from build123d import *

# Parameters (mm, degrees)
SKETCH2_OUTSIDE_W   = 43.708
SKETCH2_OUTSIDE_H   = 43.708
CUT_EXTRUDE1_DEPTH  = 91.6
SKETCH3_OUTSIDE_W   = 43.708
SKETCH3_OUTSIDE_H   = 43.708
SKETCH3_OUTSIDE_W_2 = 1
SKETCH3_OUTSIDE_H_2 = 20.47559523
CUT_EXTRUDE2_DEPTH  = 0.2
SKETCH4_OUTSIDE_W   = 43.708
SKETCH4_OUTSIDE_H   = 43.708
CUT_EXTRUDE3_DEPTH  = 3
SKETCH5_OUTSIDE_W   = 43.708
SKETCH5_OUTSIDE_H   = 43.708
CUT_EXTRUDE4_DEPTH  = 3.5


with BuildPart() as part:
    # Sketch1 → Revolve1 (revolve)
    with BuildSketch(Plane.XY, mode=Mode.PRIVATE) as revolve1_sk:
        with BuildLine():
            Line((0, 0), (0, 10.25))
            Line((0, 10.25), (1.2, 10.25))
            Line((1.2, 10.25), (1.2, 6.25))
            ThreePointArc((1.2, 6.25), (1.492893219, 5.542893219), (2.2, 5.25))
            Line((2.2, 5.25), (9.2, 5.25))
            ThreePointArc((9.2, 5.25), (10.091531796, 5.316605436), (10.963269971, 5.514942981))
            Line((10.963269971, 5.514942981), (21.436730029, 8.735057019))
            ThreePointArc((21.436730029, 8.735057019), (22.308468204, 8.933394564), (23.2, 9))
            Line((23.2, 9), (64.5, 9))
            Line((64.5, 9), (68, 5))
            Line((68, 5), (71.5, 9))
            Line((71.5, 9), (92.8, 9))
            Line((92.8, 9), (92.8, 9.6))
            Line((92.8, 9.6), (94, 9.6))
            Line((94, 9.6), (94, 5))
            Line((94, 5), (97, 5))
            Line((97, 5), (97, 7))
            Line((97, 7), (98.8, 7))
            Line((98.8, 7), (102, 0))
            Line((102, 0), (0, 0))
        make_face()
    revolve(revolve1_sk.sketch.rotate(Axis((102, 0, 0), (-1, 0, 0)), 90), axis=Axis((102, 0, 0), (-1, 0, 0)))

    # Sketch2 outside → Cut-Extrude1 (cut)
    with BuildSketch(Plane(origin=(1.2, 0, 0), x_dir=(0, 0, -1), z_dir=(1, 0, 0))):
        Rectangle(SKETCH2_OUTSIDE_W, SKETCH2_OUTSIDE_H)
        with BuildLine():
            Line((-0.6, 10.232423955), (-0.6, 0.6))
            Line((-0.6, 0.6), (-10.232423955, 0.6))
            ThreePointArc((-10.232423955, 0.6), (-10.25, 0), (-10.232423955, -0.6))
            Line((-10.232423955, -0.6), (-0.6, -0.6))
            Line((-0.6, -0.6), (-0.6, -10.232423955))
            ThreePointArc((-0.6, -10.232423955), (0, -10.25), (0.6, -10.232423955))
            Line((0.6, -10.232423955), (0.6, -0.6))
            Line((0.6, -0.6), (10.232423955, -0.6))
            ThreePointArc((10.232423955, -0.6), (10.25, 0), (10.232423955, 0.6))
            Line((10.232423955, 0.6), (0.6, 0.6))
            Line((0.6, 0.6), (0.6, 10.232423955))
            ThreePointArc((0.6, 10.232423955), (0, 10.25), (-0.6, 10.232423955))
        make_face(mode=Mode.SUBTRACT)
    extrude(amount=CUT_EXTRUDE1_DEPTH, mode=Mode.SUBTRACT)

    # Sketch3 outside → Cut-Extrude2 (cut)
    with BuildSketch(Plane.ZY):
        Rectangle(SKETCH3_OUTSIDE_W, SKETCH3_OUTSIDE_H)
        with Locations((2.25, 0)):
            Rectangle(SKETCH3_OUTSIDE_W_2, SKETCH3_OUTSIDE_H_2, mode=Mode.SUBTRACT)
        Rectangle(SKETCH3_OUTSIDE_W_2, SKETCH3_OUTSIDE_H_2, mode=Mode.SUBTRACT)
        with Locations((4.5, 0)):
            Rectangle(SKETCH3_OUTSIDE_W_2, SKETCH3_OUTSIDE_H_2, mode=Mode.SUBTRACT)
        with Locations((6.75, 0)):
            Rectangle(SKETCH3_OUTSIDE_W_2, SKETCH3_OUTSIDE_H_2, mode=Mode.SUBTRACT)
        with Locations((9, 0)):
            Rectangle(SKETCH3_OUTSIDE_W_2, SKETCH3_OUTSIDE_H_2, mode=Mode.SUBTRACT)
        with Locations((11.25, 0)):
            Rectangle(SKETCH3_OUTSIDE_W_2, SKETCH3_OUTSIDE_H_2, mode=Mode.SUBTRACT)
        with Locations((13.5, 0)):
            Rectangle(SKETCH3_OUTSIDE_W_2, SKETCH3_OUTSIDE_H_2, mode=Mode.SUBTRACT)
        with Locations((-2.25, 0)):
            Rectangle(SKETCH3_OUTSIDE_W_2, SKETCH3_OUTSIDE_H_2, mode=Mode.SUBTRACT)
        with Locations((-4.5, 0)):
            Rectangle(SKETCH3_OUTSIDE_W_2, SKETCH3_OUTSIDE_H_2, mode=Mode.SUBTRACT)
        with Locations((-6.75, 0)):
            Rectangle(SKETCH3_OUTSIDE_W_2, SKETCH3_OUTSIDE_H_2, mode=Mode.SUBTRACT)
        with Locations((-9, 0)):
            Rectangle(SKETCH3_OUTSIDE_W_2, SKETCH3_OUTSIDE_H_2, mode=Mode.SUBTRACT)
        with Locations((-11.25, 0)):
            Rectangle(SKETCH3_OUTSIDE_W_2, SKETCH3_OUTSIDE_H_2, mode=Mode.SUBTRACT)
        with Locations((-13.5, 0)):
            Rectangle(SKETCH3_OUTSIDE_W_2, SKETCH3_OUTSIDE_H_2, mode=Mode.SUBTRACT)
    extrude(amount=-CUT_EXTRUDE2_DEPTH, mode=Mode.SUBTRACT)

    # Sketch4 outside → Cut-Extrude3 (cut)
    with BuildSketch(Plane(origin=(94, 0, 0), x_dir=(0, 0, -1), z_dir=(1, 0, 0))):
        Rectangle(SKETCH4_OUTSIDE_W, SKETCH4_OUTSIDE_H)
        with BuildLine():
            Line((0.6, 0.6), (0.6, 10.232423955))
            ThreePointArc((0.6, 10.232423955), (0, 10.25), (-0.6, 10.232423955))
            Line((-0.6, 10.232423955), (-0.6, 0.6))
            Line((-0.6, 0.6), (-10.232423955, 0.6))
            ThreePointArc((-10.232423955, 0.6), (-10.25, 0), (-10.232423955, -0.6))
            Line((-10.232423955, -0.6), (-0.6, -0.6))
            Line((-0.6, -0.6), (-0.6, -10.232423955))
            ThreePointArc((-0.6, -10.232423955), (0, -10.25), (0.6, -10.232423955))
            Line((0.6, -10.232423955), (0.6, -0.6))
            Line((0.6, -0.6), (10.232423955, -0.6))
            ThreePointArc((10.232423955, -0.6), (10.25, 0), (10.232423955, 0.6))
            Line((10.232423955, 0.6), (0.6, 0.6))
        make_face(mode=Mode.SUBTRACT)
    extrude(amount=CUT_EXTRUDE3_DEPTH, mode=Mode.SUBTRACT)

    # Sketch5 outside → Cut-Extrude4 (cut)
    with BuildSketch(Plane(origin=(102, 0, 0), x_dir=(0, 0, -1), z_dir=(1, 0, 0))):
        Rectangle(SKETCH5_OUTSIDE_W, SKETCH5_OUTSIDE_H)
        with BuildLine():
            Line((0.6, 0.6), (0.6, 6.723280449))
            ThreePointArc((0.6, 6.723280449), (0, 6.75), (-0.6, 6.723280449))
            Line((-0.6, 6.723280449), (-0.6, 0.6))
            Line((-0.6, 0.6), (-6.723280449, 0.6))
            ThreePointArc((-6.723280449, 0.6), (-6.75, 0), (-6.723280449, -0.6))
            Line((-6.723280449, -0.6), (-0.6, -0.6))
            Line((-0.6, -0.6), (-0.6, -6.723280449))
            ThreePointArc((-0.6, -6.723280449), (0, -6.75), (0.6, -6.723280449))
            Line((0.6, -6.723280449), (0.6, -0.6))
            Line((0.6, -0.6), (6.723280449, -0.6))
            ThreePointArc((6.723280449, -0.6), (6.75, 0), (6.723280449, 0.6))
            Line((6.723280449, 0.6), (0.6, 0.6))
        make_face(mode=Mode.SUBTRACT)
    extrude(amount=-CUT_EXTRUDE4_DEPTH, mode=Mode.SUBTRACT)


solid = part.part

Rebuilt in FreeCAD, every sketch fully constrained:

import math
import FreeCAD as App
import Part
import Sketcher
Q = App.Units.Quantity

doc = App.newDocument("Part")
body = doc.addObject("PartDesign::Body", "Body")

# Sketch on XY plane
sketch1 = body.newObject("Sketcher::SketchObject", "Sketch")
sketch1.AttachmentSupport = (doc.getObject("XY_Plane"), [""])
sketch1.MapMode = "FlatFace"
sketch1.addGeometry([
    Part.LineSegment(App.Vector(0, 10.25, 0), App.Vector(0, 0, 0)),  # 0
    Part.LineSegment(App.Vector(0, 0, 0), App.Vector(102, 0, 0)),  # 1
    Part.LineSegment(App.Vector(102, 0, 0), App.Vector(98.8, 7, 0)),  # 2
    Part.LineSegment(App.Vector(98.8, 7, 0), App.Vector(97, 7, 0)),  # 3
    Part.LineSegment(App.Vector(97, 7, 0), App.Vector(97, 5, 0)),  # 4
    Part.LineSegment(App.Vector(97, 5, 0), App.Vector(94, 5, 0)),  # 5
    Part.LineSegment(App.Vector(94, 5, 0), App.Vector(94, 9.6, 0)),  # 6
    Part.LineSegment(App.Vector(94, 9.6, 0), App.Vector(92.8, 9.6, 0)),  # 7
    Part.LineSegment(App.Vector(92.8, 9.6, 0), App.Vector(92.8, 9, 0)),  # 8
    Part.LineSegment(App.Vector(92.8, 9, 0), App.Vector(71.5, 9, 0)),  # 9
    Part.LineSegment(App.Vector(71.5, 9, 0), App.Vector(68, 5, 0)),  # 10
    Part.LineSegment(App.Vector(68, 5, 0), App.Vector(64.5, 9, 0)),  # 11
    Part.LineSegment(App.Vector(64.5, 9, 0), App.Vector(23.2, 9, 0)),  # 12
    Part.ArcOfCircle(Part.Circle(App.Vector(23.2, 3, 0), App.Vector(0, 0, 1), 6), math.radians(90), math.radians(107.090289)),  # 13
    Part.LineSegment(App.Vector(21.43673, 8.735057, 0), App.Vector(10.96327, 5.514943, 0)),  # 14
    Part.ArcOfCircle(Part.Circle(App.Vector(9.2, 11.25, 0), App.Vector(0, 0, 1), 6), math.radians(-90), math.radians(-72.909711)),  # 15
    Part.LineSegment(App.Vector(9.2, 5.25, 0), App.Vector(2.2, 5.25, 0)),  # 16
    Part.ArcOfCircle(Part.Circle(App.Vector(2.2, 6.25, 0), App.Vector(0, 0, 1), 1), math.radians(-180), math.radians(-90)),  # 17
    Part.LineSegment(App.Vector(1.2, 6.25, 0), App.Vector(1.2, 10.25, 0)),  # 18
    Part.LineSegment(App.Vector(1.2, 10.25, 0), App.Vector(0, 10.25, 0)),  # 19
], False)
sketch1.addConstraint([
    Sketcher.Constraint("Coincident", 0, 2, 1, 1),
    Sketcher.Constraint("Coincident", 1, 2, 2, 1),
    Sketcher.Constraint("Coincident", 2, 2, 3, 1),
    Sketcher.Constraint("Coincident", 3, 2, 4, 1),
    Sketcher.Constraint("Coincident", 4, 2, 5, 1),
    Sketcher.Constraint("Coincident", 5, 2, 6, 1),
    Sketcher.Constraint("Coincident", 6, 2, 7, 1),
    Sketcher.Constraint("Coincident", 7, 2, 8, 1),
    Sketcher.Constraint("Coincident", 8, 2, 9, 1),
    Sketcher.Constraint("Coincident", 9, 2, 10, 1),
    Sketcher.Constraint("Coincident", 10, 2, 11, 1),
    Sketcher.Constraint("Coincident", 11, 2, 12, 1),
    Sketcher.Constraint("Tangent", 12, 2, 13, 1),
    Sketcher.Constraint("Tangent", 13, 2, 14, 1),
    Sketcher.Constraint("Tangent", 14, 2, 15, 2),
    Sketcher.Constraint("Tangent", 15, 1, 16, 1),
    Sketcher.Constraint("Tangent", 16, 2, 17, 2),
    Sketcher.Constraint("Tangent", 17, 1, 18, 1),
    Sketcher.Constraint("Coincident", 18, 2, 19, 1),
    Sketcher.Constraint("Coincident", 19, 2, 0, 1),
    Sketcher.Constraint("Vertical", 0),
    Sketcher.Constraint("Horizontal", 1),
    Sketcher.Constraint("Horizontal", 3),
    Sketcher.Constraint("Vertical", 4),
    Sketcher.Constraint("Horizontal", 5),
    Sketcher.Constraint("Vertical", 6),
    Sketcher.Constraint("Horizontal", 7),
    Sketcher.Constraint("Vertical", 8),
    Sketcher.Constraint("Horizontal", 9),
    Sketcher.Constraint("Horizontal", 12),
    Sketcher.Constraint("Horizontal", 16),
    Sketcher.Constraint("Vertical", 18),
    Sketcher.Constraint("Horizontal", 19),
    Sketcher.Constraint("Coincident", 0, 2, -1, 1),
    Sketcher.Constraint("Equal", 13, 15),
    Sketcher.Constraint("Horizontal", 5, 2, 10, 2),
    Sketcher.Constraint("Horizontal", 9, 2, 11, 2),
    Sketcher.Constraint("Equal", 7, 19),
    Sketcher.Constraint("Equal", 10, 11),
    Sketcher.Constraint("Radius", 13, Q("6 mm")),
    Sketcher.Constraint("Radius", 17, Q("1 mm")),
    Sketcher.Constraint("DistanceX", 1, 1, 1, 2, Q("102 mm")),
    Sketcher.Constraint("DistanceX", 5, 2, 5, 1, Q("3 mm")),
    Sketcher.Constraint("DistanceX", 16, 2, 16, 1, Q("7 mm")),
    Sketcher.Constraint("DistanceY", 4, 2, 4, 1, Q("2 mm")),
    Sketcher.Constraint("DistanceY", 18, 1, 18, 2, Q("4 mm")),
    Sketcher.Constraint("DistanceX", 3, 2, 3, 1, Q("1.8 mm")),
    Sketcher.Constraint("DistanceX", 7, 2, 7, 1, Q("1.2 mm")),
    Sketcher.Constraint("DistanceX", 9, 2, 9, 1, Q("21.3 mm")),
    Sketcher.Constraint("DistanceX", 12, 2, 12, 1, Q("41.3 mm")),
    Sketcher.Constraint("DistanceY", 6, 1, 6, 2, Q("4.6 mm")),
    Sketcher.Constraint("DistanceY", 8, 2, 8, 1, Q("0.6 mm")),
    Sketcher.Constraint("DistanceY", -1, 1, 13, 3, Q("3 mm")),
    Sketcher.Constraint("DistanceX", -1, 1, 3, 2, Q("97 mm")),
    Sketcher.Constraint("DistanceX", -1, 1, 10, 2, Q("68 mm")),
    Sketcher.Constraint("DistanceY", 0, 2, 0, 1, Q("10.25 mm")),
])
revolution = body.newObject("PartDesign::Revolution", "Revolution")
revolution.Profile = sketch1
revolution.ReferenceAxis = (sketch1, ["H_Axis"])
revolution.Angle = 360

# Sketch on YZ plane
sketch2 = body.newObject("Sketcher::SketchObject", "Sketch001")
sketch2.AttachmentSupport = (doc.getObject("YZ_Plane"), [""])
sketch2.MapMode = "FlatFace"
sketch2.AttachmentOffset = App.Placement(App.Vector(0, 0, 1.2), App.Rotation())
sketch2.addGeometry([
    Part.LineSegment(App.Vector(21.854, 21.854, 0), App.Vector(-21.854, 21.854, 0)),  # 0
    Part.LineSegment(App.Vector(-21.854, 21.854, 0), App.Vector(-21.854, -21.854, 0)),  # 1
    Part.LineSegment(App.Vector(-21.854, -21.854, 0), App.Vector(21.854, -21.854, 0)),  # 2
    Part.LineSegment(App.Vector(21.854, -21.854, 0), App.Vector(21.854, 21.854, 0)),  # 3
    Part.LineSegment(App.Vector(0.6, 0.6, 0), App.Vector(10.232424, 0.6, 0)),  # 4
    Part.ArcOfCircle(Part.Circle(App.Vector(0, 0, 0), App.Vector(0, 0, 1), 10.25), math.radians(-3.355818), math.radians(3.355818)),  # 5
    Part.LineSegment(App.Vector(10.232424, -0.6, 0), App.Vector(0.6, -0.6, 0)),  # 6
    Part.LineSegment(App.Vector(0.6, -0.6, 0), App.Vector(0.6, -10.232424, 0)),  # 7
    Part.ArcOfCircle(Part.Circle(App.Vector(0, 0, 0), App.Vector(0, 0, 1), 10.25), math.radians(-93.355818), math.radians(-86.644182)),  # 8
    Part.LineSegment(App.Vector(-0.6, -10.232424, 0), App.Vector(-0.6, -0.6, 0)),  # 9
    Part.LineSegment(App.Vector(-0.6, -0.6, 0), App.Vector(-10.232424, -0.6, 0)),  # 10
    Part.ArcOfCircle(Part.Circle(App.Vector(0, 0, 0), App.Vector(0, 0, 1), 10.25), math.radians(176.644182), math.radians(183.355818)),  # 11
    Part.LineSegment(App.Vector(-10.232424, 0.6, 0), App.Vector(-0.6, 0.6, 0)),  # 12
    Part.LineSegment(App.Vector(-0.6, 0.6, 0), App.Vector(-0.6, 10.232424, 0)),  # 13
    Part.ArcOfCircle(Part.Circle(App.Vector(0, 0, 0), App.Vector(0, 0, 1), 10.25), math.radians(86.644182), math.radians(93.355818)),  # 14
    Part.LineSegment(App.Vector(0.6, 10.232424, 0), App.Vector(0.6, 0.6, 0)),  # 15
], False)
sketch2.addConstraint([
    Sketcher.Constraint("Coincident", 0, 2, 1, 1),
    Sketcher.Constraint("Coincident", 1, 2, 2, 1),
    Sketcher.Constraint("Coincident", 2, 2, 3, 1),
    Sketcher.Constraint("Coincident", 3, 2, 0, 1),
    Sketcher.Constraint("Coincident", 4, 2, 5, 2),
    Sketcher.Constraint("Coincident", 5, 1, 6, 1),
    Sketcher.Constraint("Coincident", 6, 2, 7, 1),
    Sketcher.Constraint("Coincident", 7, 2, 8, 2),
    Sketcher.Constraint("Coincident", 8, 1, 9, 1),
    Sketcher.Constraint("Coincident", 9, 2, 10, 1),
    Sketcher.Constraint("Coincident", 10, 2, 11, 2),
    Sketcher.Constraint("Coincident", 11, 1, 12, 1),
    Sketcher.Constraint("Coincident", 12, 2, 13, 1),
    Sketcher.Constraint("Coincident", 13, 2, 14, 2),
    Sketcher.Constraint("Coincident", 14, 1, 15, 1),
    Sketcher.Constraint("Coincident", 15, 2, 4, 1),
    Sketcher.Constraint("Horizontal", 0),
    Sketcher.Constraint("Vertical", 1),
    Sketcher.Constraint("Horizontal", 2),
    Sketcher.Constraint("Vertical", 3),
    Sketcher.Constraint("Horizontal", 4),
    Sketcher.Constraint("Horizontal", 6),
    Sketcher.Constraint("Vertical", 7),
    Sketcher.Constraint("Vertical", 9),
    Sketcher.Constraint("Horizontal", 10),
    Sketcher.Constraint("Horizontal", 12),
    Sketcher.Constraint("Vertical", 13),
    Sketcher.Constraint("Vertical", 15),
    Sketcher.Constraint("Coincident", 5, 3, -1, 1),
    Sketcher.Constraint("Coincident", 8, 3, -1, 1),
    Sketcher.Constraint("Coincident", 11, 3, -1, 1),
    Sketcher.Constraint("Coincident", 14, 3, -1, 1),
    Sketcher.Constraint("Equal", 5, 8),
    Sketcher.Constraint("Equal", 8, 11),
    Sketcher.Constraint("Equal", 11, 14),
    Sketcher.Constraint("Symmetric", 0, 2, 2, 2, -1, 1),
    Sketcher.Constraint("Symmetric", 6, 2, 12, 2, -1, 1),
    Sketcher.Constraint("Symmetric", 9, 2, 15, 2, -1, 1),
    Sketcher.Constraint("Symmetric", 6, 2, 9, 2, -2),
    Sketcher.Constraint("Equal", 2, 1),
    Sketcher.Constraint("Equal", 12, 7),
    Sketcher.Constraint("Radius", 5, Q("10.25 mm")),
    Sketcher.Constraint("DistanceY", -1, 1, 4, 2, Q("0.6 mm")),
    Sketcher.Constraint("DistanceX", 0, 2, 0, 1, Q("43.708 mm")),
])
pocket1 = body.newObject("PartDesign::Pocket", "Pocket")
pocket1.Profile = sketch2
pocket1.Length = 91.6
pocket1.Reversed = True

# Sketch on YZ plane
sketch3 = body.newObject("Sketcher::SketchObject", "Sketch002")
sketch3.AttachmentSupport = (doc.getObject("YZ_Plane"), [""])
sketch3.MapMode = "FlatFace"
sketch3.addGeometry([
    Part.LineSegment(App.Vector(21.854, -21.854, 0), App.Vector(-21.854, -21.854, 0)),  # 0
    Part.LineSegment(App.Vector(-21.854, -21.854, 0), App.Vector(-21.854, 21.854, 0)),  # 1
    Part.LineSegment(App.Vector(-21.854, 21.854, 0), App.Vector(21.854, 21.854, 0)),  # 2
    Part.LineSegment(App.Vector(21.854, 21.854, 0), App.Vector(21.854, -21.854, 0)),  # 3
    Part.LineSegment(App.Vector(-10.237798, -13, 0), App.Vector(-10.237798, -14, 0)),  # 4
    Part.LineSegment(App.Vector(-10.237798, -14, 0), App.Vector(10.237798, -14, 0)),  # 5
    Part.LineSegment(App.Vector(10.237798, -14, 0), App.Vector(10.237798, -13, 0)),  # 6
    Part.LineSegment(App.Vector(10.237798, -13, 0), App.Vector(-10.237798, -13, 0)),  # 7
    Part.LineSegment(App.Vector(-10.237798, -10.75, 0), App.Vector(-10.237798, -11.75, 0)),  # 8
    Part.LineSegment(App.Vector(-10.237798, -11.75, 0), App.Vector(10.237798, -11.75, 0)),  # 9
    Part.LineSegment(App.Vector(10.237798, -11.75, 0), App.Vector(10.237798, -10.75, 0)),  # 10
    Part.LineSegment(App.Vector(10.237798, -10.75, 0), App.Vector(-10.237798, -10.75, 0)),  # 11
    Part.LineSegment(App.Vector(-10.237798, -8.5, 0), App.Vector(-10.237798, -9.5, 0)),  # 12
    Part.LineSegment(App.Vector(-10.237798, -9.5, 0), App.Vector(10.237798, -9.5, 0)),  # 13
    Part.LineSegment(App.Vector(10.237798, -9.5, 0), App.Vector(10.237798, -8.5, 0)),  # 14
    Part.LineSegment(App.Vector(10.237798, -8.5, 0), App.Vector(-10.237798, -8.5, 0)),  # 15
    Part.LineSegment(App.Vector(-10.237798, -6.25, 0), App.Vector(-10.237798, -7.25, 0)),  # 16
    Part.LineSegment(App.Vector(-10.237798, -7.25, 0), App.Vector(10.237798, -7.25, 0)),  # 17
    Part.LineSegment(App.Vector(10.237798, -7.25, 0), App.Vector(10.237798, -6.25, 0)),  # 18
    Part.LineSegment(App.Vector(10.237798, -6.25, 0), App.Vector(-10.237798, -6.25, 0)),  # 19
    Part.LineSegment(App.Vector(-10.237798, -4, 0), App.Vector(-10.237798, -5, 0)),  # 20
    Part.LineSegment(App.Vector(-10.237798, -5, 0), App.Vector(10.237798, -5, 0)),  # 21
    Part.LineSegment(App.Vector(10.237798, -5, 0), App.Vector(10.237798, -4, 0)),  # 22
    Part.LineSegment(App.Vector(10.237798, -4, 0), App.Vector(-10.237798, -4, 0)),  # 23
    Part.LineSegment(App.Vector(-10.237798, -1.75, 0), App.Vector(-10.237798, -2.75, 0)),  # 24
    Part.LineSegment(App.Vector(-10.237798, -2.75, 0), App.Vector(10.237798, -2.75, 0)),  # 25
    Part.LineSegment(App.Vector(10.237798, -2.75, 0), App.Vector(10.237798, -1.75, 0)),  # 26
    Part.LineSegment(App.Vector(10.237798, -1.75, 0), App.Vector(-10.237798, -1.75, 0)),  # 27
    Part.LineSegment(App.Vector(-10.237798, 0.5, 0), App.Vector(-10.237798, -0.5, 0)),  # 28
    Part.LineSegment(App.Vector(-10.237798, -0.5, 0), App.Vector(10.237798, -0.5, 0)),  # 29
    Part.LineSegment(App.Vector(10.237798, -0.5, 0), App.Vector(10.237798, 0.5, 0)),  # 30
    Part.LineSegment(App.Vector(10.237798, 0.5, 0), App.Vector(-10.237798, 0.5, 0)),  # 31
    Part.LineSegment(App.Vector(-10.237798, 2.75, 0), App.Vector(-10.237798, 1.75, 0)),  # 32
    Part.LineSegment(App.Vector(-10.237798, 1.75, 0), App.Vector(10.237798, 1.75, 0)),  # 33
    Part.LineSegment(App.Vector(10.237798, 1.75, 0), App.Vector(10.237798, 2.75, 0)),  # 34
    Part.LineSegment(App.Vector(10.237798, 2.75, 0), App.Vector(-10.237798, 2.75, 0)),  # 35
    Part.LineSegment(App.Vector(-10.237798, 5, 0), App.Vector(-10.237798, 4, 0)),  # 36
    Part.LineSegment(App.Vector(-10.237798, 4, 0), App.Vector(10.237798, 4, 0)),  # 37
    Part.LineSegment(App.Vector(10.237798, 4, 0), App.Vector(10.237798, 5, 0)),  # 38
    Part.LineSegment(App.Vector(10.237798, 5, 0), App.Vector(-10.237798, 5, 0)),  # 39
    Part.LineSegment(App.Vector(-10.237798, 7.25, 0), App.Vector(-10.237798, 6.25, 0)),  # 40
    Part.LineSegment(App.Vector(-10.237798, 6.25, 0), App.Vector(10.237798, 6.25, 0)),  # 41
    Part.LineSegment(App.Vector(10.237798, 6.25, 0), App.Vector(10.237798, 7.25, 0)),  # 42
    Part.LineSegment(App.Vector(10.237798, 7.25, 0), App.Vector(-10.237798, 7.25, 0)),  # 43
    Part.LineSegment(App.Vector(-10.237798, 9.5, 0), App.Vector(-10.237798, 8.5, 0)),  # 44
    Part.LineSegment(App.Vector(-10.237798, 8.5, 0), App.Vector(10.237798, 8.5, 0)),  # 45
    Part.LineSegment(App.Vector(10.237798, 8.5, 0), App.Vector(10.237798, 9.5, 0)),  # 46
    Part.LineSegment(App.Vector(10.237798, 9.5, 0), App.Vector(-10.237798, 9.5, 0)),  # 47
    Part.LineSegment(App.Vector(-10.237798, 11.75, 0), App.Vector(-10.237798, 10.75, 0)),  # 48
    Part.LineSegment(App.Vector(-10.237798, 10.75, 0), App.Vector(10.237798, 10.75, 0)),  # 49
    Part.LineSegment(App.Vector(10.237798, 10.75, 0), App.Vector(10.237798, 11.75, 0)),  # 50
    Part.LineSegment(App.Vector(10.237798, 11.75, 0), App.Vector(-10.237798, 11.75, 0)),  # 51
    Part.LineSegment(App.Vector(-10.237798, 14, 0), App.Vector(-10.237798, 13, 0)),  # 52
    Part.LineSegment(App.Vector(-10.237798, 13, 0), App.Vector(10.237798, 13, 0)),  # 53
    Part.LineSegment(App.Vector(10.237798, 13, 0), App.Vector(10.237798, 14, 0)),  # 54
    Part.LineSegment(App.Vector(10.237798, 14, 0), App.Vector(-10.237798, 14, 0)),  # 55
], False)
sketch3.addConstraint([
    Sketcher.Constraint("Coincident", 0, 2, 1, 1),
    Sketcher.Constraint("Coincident", 1, 2, 2, 1),
    Sketcher.Constraint("Coincident", 2, 2, 3, 1),
    Sketcher.Constraint("Coincident", 3, 2, 0, 1),
    Sketcher.Constraint("Coincident", 4, 2, 5, 1),
    Sketcher.Constraint("Coincident", 5, 2, 6, 1),
    Sketcher.Constraint("Coincident", 6, 2, 7, 1),
    Sketcher.Constraint("Coincident", 7, 2, 4, 1),
    Sketcher.Constraint("Coincident", 8, 2, 9, 1),
    Sketcher.Constraint("Coincident", 9, 2, 10, 1),
    Sketcher.Constraint("Coincident", 10, 2, 11, 1),
    Sketcher.Constraint("Coincident", 11, 2, 8, 1),
    Sketcher.Constraint("Coincident", 12, 2, 13, 1),
    Sketcher.Constraint("Coincident", 13, 2, 14, 1),
    Sketcher.Constraint("Coincident", 14, 2, 15, 1),
    Sketcher.Constraint("Coincident", 15, 2, 12, 1),
    Sketcher.Constraint("Coincident", 16, 2, 17, 1),
    Sketcher.Constraint("Coincident", 17, 2, 18, 1),
    Sketcher.Constraint("Coincident", 18, 2, 19, 1),
    Sketcher.Constraint("Coincident", 19, 2, 16, 1),
    Sketcher.Constraint("Coincident", 20, 2, 21, 1),
    Sketcher.Constraint("Coincident", 21, 2, 22, 1),
    Sketcher.Constraint("Coincident", 22, 2, 23, 1),
    Sketcher.Constraint("Coincident", 23, 2, 20, 1),
    Sketcher.Constraint("Coincident", 24, 2, 25, 1),
    Sketcher.Constraint("Coincident", 25, 2, 26, 1),
    Sketcher.Constraint("Coincident", 26, 2, 27, 1),
    Sketcher.Constraint("Coincident", 27, 2, 24, 1),
    Sketcher.Constraint("Coincident", 28, 2, 29, 1),
    Sketcher.Constraint("Coincident", 29, 2, 30, 1),
    Sketcher.Constraint("Coincident", 30, 2, 31, 1),
    Sketcher.Constraint("Coincident", 31, 2, 28, 1),
    Sketcher.Constraint("Coincident", 32, 2, 33, 1),
    Sketcher.Constraint("Coincident", 33, 2, 34, 1),
    Sketcher.Constraint("Coincident", 34, 2, 35, 1),
    Sketcher.Constraint("Coincident", 35, 2, 32, 1),
    Sketcher.Constraint("Coincident", 36, 2, 37, 1),
    Sketcher.Constraint("Coincident", 37, 2, 38, 1),
    Sketcher.Constraint("Coincident", 38, 2, 39, 1),
    Sketcher.Constraint("Coincident", 39, 2, 36, 1),
    Sketcher.Constraint("Coincident", 40, 2, 41, 1),
    Sketcher.Constraint("Coincident", 41, 2, 42, 1),
    Sketcher.Constraint("Coincident", 42, 2, 43, 1),
    Sketcher.Constraint("Coincident", 43, 2, 40, 1),
    Sketcher.Constraint("Coincident", 44, 2, 45, 1),
    Sketcher.Constraint("Coincident", 45, 2, 46, 1),
    Sketcher.Constraint("Coincident", 46, 2, 47, 1),
    Sketcher.Constraint("Coincident", 47, 2, 44, 1),
    Sketcher.Constraint("Coincident", 48, 2, 49, 1),
    Sketcher.Constraint("Coincident", 49, 2, 50, 1),
    Sketcher.Constraint("Coincident", 50, 2, 51, 1),
    Sketcher.Constraint("Coincident", 51, 2, 48, 1),
    Sketcher.Constraint("Coincident", 52, 2, 53, 1),
    Sketcher.Constraint("Coincident", 53, 2, 54, 1),
    Sketcher.Constraint("Coincident", 54, 2, 55, 1),
    Sketcher.Constraint("Coincident", 55, 2, 52, 1),
    Sketcher.Constraint("Horizontal", 0),
    Sketcher.Constraint("Vertical", 1),
    Sketcher.Constraint("Horizontal", 2),
    Sketcher.Constraint("Vertical", 3),
    Sketcher.Constraint("Vertical", 4),
    Sketcher.Constraint("Horizontal", 5),
    Sketcher.Constraint("Vertical", 6),
    Sketcher.Constraint("Horizontal", 7),
    Sketcher.Constraint("Vertical", 8),
    Sketcher.Constraint("Horizontal", 9),
    Sketcher.Constraint("Vertical", 10),
    Sketcher.Constraint("Horizontal", 11),
    Sketcher.Constraint("Vertical", 12),
    Sketcher.Constraint("Horizontal", 13),
    Sketcher.Constraint("Vertical", 14),
    Sketcher.Constraint("Horizontal", 15),
    Sketcher.Constraint("Vertical", 16),
    Sketcher.Constraint("Horizontal", 17),
    Sketcher.Constraint("Vertical", 18),
    Sketcher.Constraint("Horizontal", 19),
    Sketcher.Constraint("Vertical", 20),
    Sketcher.Constraint("Horizontal", 21),
    Sketcher.Constraint("Vertical", 22),
    Sketcher.Constraint("Horizontal", 23),
    Sketcher.Constraint("Vertical", 24),
    Sketcher.Constraint("Horizontal", 25),
    Sketcher.Constraint("Vertical", 26),
    Sketcher.Constraint("Horizontal", 27),
    Sketcher.Constraint("Vertical", 28),
    Sketcher.Constraint("Horizontal", 29),
    Sketcher.Constraint("Vertical", 30),
    Sketcher.Constraint("Horizontal", 31),
    Sketcher.Constraint("Vertical", 32),
    Sketcher.Constraint("Horizontal", 33),
    Sketcher.Constraint("Vertical", 34),
    Sketcher.Constraint("Horizontal", 35),
    Sketcher.Constraint("Vertical", 36),
    Sketcher.Constraint("Horizontal", 37),
    Sketcher.Constraint("Vertical", 38),
    Sketcher.Constraint("Horizontal", 39),
    Sketcher.Constraint("Vertical", 40),
    Sketcher.Constraint("Horizontal", 41),
    Sketcher.Constraint("Vertical", 42),
    Sketcher.Constraint("Horizontal", 43),
    Sketcher.Constraint("Vertical", 44),
    Sketcher.Constraint("Horizontal", 45),
    Sketcher.Constraint("Vertical", 46),
    Sketcher.Constraint("Horizontal", 47),
    Sketcher.Constraint("Vertical", 48),
    Sketcher.Constraint("Horizontal", 49),
    Sketcher.Constraint("Vertical", 50),
    Sketcher.Constraint("Horizontal", 51),
    Sketcher.Constraint("Vertical", 52),
    Sketcher.Constraint("Horizontal", 53),
    Sketcher.Constraint("Vertical", 54),
    Sketcher.Constraint("Horizontal", 55),
    Sketcher.Constraint("Symmetric", 0, 2, 2, 2, -1, 1),
    Sketcher.Constraint("Symmetric", 28, 2, 30, 2, -1, 1),
    Sketcher.Constraint("Symmetric", 26, 2, 32, 2, -1, 1),
    Sketcher.Constraint("Symmetric", 24, 2, 34, 2, -1, 1),
    Sketcher.Constraint("Symmetric", 22, 2, 36, 2, -1, 1),
    Sketcher.Constraint("Symmetric", 20, 2, 38, 2, -1, 1),
    Sketcher.Constraint("Symmetric", 18, 2, 40, 2, -1, 1),
    Sketcher.Constraint("Symmetric", 16, 2, 42, 2, -1, 1),
    Sketcher.Constraint("Symmetric", 14, 2, 44, 2, -1, 1),
    Sketcher.Constraint("Symmetric", 12, 2, 46, 2, -1, 1),
    Sketcher.Constraint("Symmetric", 10, 2, 48, 2, -1, 1),
    Sketcher.Constraint("Symmetric", 8, 2, 50, 2, -1, 1),
    Sketcher.Constraint("Symmetric", 6, 2, 52, 2, -1, 1),
    Sketcher.Constraint("Symmetric", 4, 2, 54, 2, -1, 1),
    Sketcher.Constraint("Vertical", 7, 2, 8, 2),
    Sketcher.Constraint("Vertical", 6, 2, 9, 2),
    Sketcher.Constraint("Vertical", 11, 2, 12, 2),
    Sketcher.Constraint("Vertical", 10, 2, 13, 2),
    Sketcher.Constraint("Vertical", 15, 2, 16, 2),
    Sketcher.Constraint("Vertical", 14, 2, 17, 2),
    Sketcher.Constraint("Vertical", 19, 2, 20, 2),
    Sketcher.Constraint("Vertical", 18, 2, 21, 2),
    Sketcher.Constraint("Vertical", 23, 2, 24, 2),
    Sketcher.Constraint("Vertical", 22, 2, 25, 2),
    Sketcher.Constraint("Vertical", 27, 2, 28, 2),
    Sketcher.Constraint("Vertical", 26, 2, 29, 2),
    Sketcher.Constraint("Equal", 2, 1),
    Sketcher.Constraint("Equal", 6, 8),
    Sketcher.Constraint("Equal", 10, 12),
    Sketcher.Constraint("Equal", 14, 16),
    Sketcher.Constraint("Equal", 18, 20),
    Sketcher.Constraint("Equal", 22, 24),
    Sketcher.Constraint("Equal", 26, 28),
    Sketcher.Constraint("DistanceY", 4, 2, 4, 1, Q("1 mm")),
    Sketcher.Constraint("DistanceY", 4, 2, -1, 1, Q("14 mm")),
    Sketcher.Constraint("DistanceY", 20, 2, -1, 1, Q("5 mm")),
    Sketcher.Constraint("DistanceY", 12, 2, -1, 1, Q("9.5 mm")),
    Sketcher.Constraint("DistanceY", 11, 2, 16, 2, Q("3.5 mm")),
    Sketcher.Constraint("DistanceY", 19, 2, 24, 2, Q("3.5 mm")),
    Sketcher.Constraint("DistanceY", 27, 2, 32, 2, Q("3.5 mm")),
    Sketcher.Constraint("DistanceX", 0, 2, 0, 1, Q("43.708 mm")),
    Sketcher.Constraint("DistanceX", 5, 1, 5, 2, Q("20.475595 mm")),
])
pocket2 = body.newObject("PartDesign::Pocket", "Pocket001")
pocket2.Profile = sketch3
pocket2.Length = 0.2
pocket2.Reversed = True

# Sketch on YZ plane
sketch4 = body.newObject("Sketcher::SketchObject", "Sketch003")
sketch4.AttachmentSupport = (doc.getObject("YZ_Plane"), [""])
sketch4.MapMode = "FlatFace"
sketch4.AttachmentOffset = App.Placement(App.Vector(0, 0, 94), App.Rotation())
sketch4.addGeometry([
    Part.LineSegment(App.Vector(21.854, 21.854, 0), App.Vector(-21.854, 21.854, 0)),  # 0
    Part.LineSegment(App.Vector(-21.854, 21.854, 0), App.Vector(-21.854, -21.854, 0)),  # 1
    Part.LineSegment(App.Vector(-21.854, -21.854, 0), App.Vector(21.854, -21.854, 0)),  # 2
    Part.LineSegment(App.Vector(21.854, -21.854, 0), App.Vector(21.854, 21.854, 0)),  # 3
    Part.LineSegment(App.Vector(10.232424, -0.6, 0), App.Vector(0.6, -0.6, 0)),  # 4
    Part.LineSegment(App.Vector(0.6, -0.6, 0), App.Vector(0.6, -10.232424, 0)),  # 5
    Part.ArcOfCircle(Part.Circle(App.Vector(0, 0, 0), App.Vector(0, 0, 1), 10.25), math.radians(-93.355818), math.radians(-86.644182)),  # 6
    Part.LineSegment(App.Vector(-0.6, -10.232424, 0), App.Vector(-0.6, -0.6, 0)),  # 7
    Part.LineSegment(App.Vector(-0.6, -0.6, 0), App.Vector(-10.232424, -0.6, 0)),  # 8
    Part.ArcOfCircle(Part.Circle(App.Vector(0, 0, 0), App.Vector(0, 0, 1), 10.25), math.radians(176.644182), math.radians(183.355818)),  # 9
    Part.LineSegment(App.Vector(-10.232424, 0.6, 0), App.Vector(-0.6, 0.6, 0)),  # 10
    Part.LineSegment(App.Vector(-0.6, 0.6, 0), App.Vector(-0.6, 10.232424, 0)),  # 11
    Part.ArcOfCircle(Part.Circle(App.Vector(0, 0, 0), App.Vector(0, 0, 1), 10.25), math.radians(86.644182), math.radians(93.355818)),  # 12
    Part.LineSegment(App.Vector(0.6, 10.232424, 0), App.Vector(0.6, 0.6, 0)),  # 13
    Part.LineSegment(App.Vector(0.6, 0.6, 0), App.Vector(10.232424, 0.6, 0)),  # 14
    Part.ArcOfCircle(Part.Circle(App.Vector(0, 0, 0), App.Vector(0, 0, 1), 10.25), math.radians(-3.355818), math.radians(3.355818)),  # 15
], False)
sketch4.addConstraint([
    Sketcher.Constraint("Coincident", 0, 2, 1, 1),
    Sketcher.Constraint("Coincident", 1, 2, 2, 1),
    Sketcher.Constraint("Coincident", 2, 2, 3, 1),
    Sketcher.Constraint("Coincident", 3, 2, 0, 1),
    Sketcher.Constraint("Coincident", 4, 2, 5, 1),
    Sketcher.Constraint("Coincident", 5, 2, 6, 2),
    Sketcher.Constraint("Coincident", 6, 1, 7, 1),
    Sketcher.Constraint("Coincident", 7, 2, 8, 1),
    Sketcher.Constraint("Coincident", 8, 2, 9, 2),
    Sketcher.Constraint("Coincident", 9, 1, 10, 1),
    Sketcher.Constraint("Coincident", 10, 2, 11, 1),
    Sketcher.Constraint("Coincident", 11, 2, 12, 2),
    Sketcher.Constraint("Coincident", 12, 1, 13, 1),
    Sketcher.Constraint("Coincident", 13, 2, 14, 1),
    Sketcher.Constraint("Coincident", 14, 2, 15, 2),
    Sketcher.Constraint("Coincident", 15, 1, 4, 1),
    Sketcher.Constraint("Horizontal", 0),
    Sketcher.Constraint("Vertical", 1),
    Sketcher.Constraint("Horizontal", 2),
    Sketcher.Constraint("Vertical", 3),
    Sketcher.Constraint("Horizontal", 4),
    Sketcher.Constraint("Vertical", 5),
    Sketcher.Constraint("Vertical", 7),
    Sketcher.Constraint("Horizontal", 8),
    Sketcher.Constraint("Horizontal", 10),
    Sketcher.Constraint("Vertical", 11),
    Sketcher.Constraint("Vertical", 13),
    Sketcher.Constraint("Horizontal", 14),
    Sketcher.Constraint("Coincident", 6, 3, -1, 1),
    Sketcher.Constraint("Coincident", 9, 3, -1, 1),
    Sketcher.Constraint("Coincident", 12, 3, -1, 1),
    Sketcher.Constraint("Coincident", 15, 3, -1, 1),
    Sketcher.Constraint("Equal", 6, 9),
    Sketcher.Constraint("Equal", 9, 12),
    Sketcher.Constraint("Equal", 12, 15),
    Sketcher.Constraint("Symmetric", 0, 2, 2, 2, -1, 1),
    Sketcher.Constraint("Symmetric", 4, 2, 10, 2, -1, 1),
    Sketcher.Constraint("Symmetric", 7, 2, 13, 2, -1, 1),
    Sketcher.Constraint("Symmetric", 4, 2, 7, 2, -2),
    Sketcher.Constraint("Equal", 2, 1),
    Sketcher.Constraint("Equal", 14, 5),
    Sketcher.Constraint("Radius", 6, Q("10.25 mm")),
    Sketcher.Constraint("DistanceX", -1, 1, 4, 2, Q("0.6 mm")),
    Sketcher.Constraint("DistanceX", 0, 2, 0, 1, Q("43.708 mm")),
])
pocket3 = body.newObject("PartDesign::Pocket", "Pocket002")
pocket3.Profile = sketch4
pocket3.Length = 3
pocket3.Reversed = True

# Sketch on YZ plane
sketch5 = body.newObject("Sketcher::SketchObject", "Sketch004")
sketch5.AttachmentSupport = (doc.getObject("YZ_Plane"), [""])
sketch5.MapMode = "FlatFace"
sketch5.AttachmentOffset = App.Placement(App.Vector(0, 0, 102), App.Rotation())
sketch5.addGeometry([
    Part.LineSegment(App.Vector(21.854, 21.854, 0), App.Vector(-21.854, 21.854, 0)),  # 0
    Part.LineSegment(App.Vector(-21.854, 21.854, 0), App.Vector(-21.854, -21.854, 0)),  # 1
    Part.LineSegment(App.Vector(-21.854, -21.854, 0), App.Vector(21.854, -21.854, 0)),  # 2
    Part.LineSegment(App.Vector(21.854, -21.854, 0), App.Vector(21.854, 21.854, 0)),  # 3
    Part.LineSegment(App.Vector(6.72328, -0.6, 0), App.Vector(0.6, -0.6, 0)),  # 4
    Part.LineSegment(App.Vector(0.6, -0.6, 0), App.Vector(0.6, -6.72328, 0)),  # 5
    Part.ArcOfCircle(Part.Circle(App.Vector(0, 0, 0), App.Vector(0, 0, 1), 6.75), math.radians(-95.099689), math.radians(-84.900311)),  # 6
    Part.LineSegment(App.Vector(-0.6, -6.72328, 0), App.Vector(-0.6, -0.6, 0)),  # 7
    Part.LineSegment(App.Vector(-0.6, -0.6, 0), App.Vector(-6.72328, -0.6, 0)),  # 8
    Part.ArcOfCircle(Part.Circle(App.Vector(0, 0, 0), App.Vector(0, 0, 1), 6.75), math.radians(174.900311), math.radians(185.099689)),  # 9
    Part.LineSegment(App.Vector(-6.72328, 0.6, 0), App.Vector(-0.6, 0.6, 0)),  # 10
    Part.LineSegment(App.Vector(-0.6, 0.6, 0), App.Vector(-0.6, 6.72328, 0)),  # 11
    Part.ArcOfCircle(Part.Circle(App.Vector(0, 0, 0), App.Vector(0, 0, 1), 6.75), math.radians(84.900311), math.radians(95.099689)),  # 12
    Part.LineSegment(App.Vector(0.6, 6.72328, 0), App.Vector(0.6, 0.6, 0)),  # 13
    Part.LineSegment(App.Vector(0.6, 0.6, 0), App.Vector(6.72328, 0.6, 0)),  # 14
    Part.ArcOfCircle(Part.Circle(App.Vector(0, 0, 0), App.Vector(0, 0, 1), 6.75), math.radians(-5.099689), math.radians(5.099689)),  # 15
], False)
sketch5.addConstraint([
    Sketcher.Constraint("Coincident", 0, 2, 1, 1),
    Sketcher.Constraint("Coincident", 1, 2, 2, 1),
    Sketcher.Constraint("Coincident", 2, 2, 3, 1),
    Sketcher.Constraint("Coincident", 3, 2, 0, 1),
    Sketcher.Constraint("Coincident", 4, 2, 5, 1),
    Sketcher.Constraint("Coincident", 5, 2, 6, 2),
    Sketcher.Constraint("Coincident", 6, 1, 7, 1),
    Sketcher.Constraint("Coincident", 7, 2, 8, 1),
    Sketcher.Constraint("Coincident", 8, 2, 9, 2),
    Sketcher.Constraint("Coincident", 9, 1, 10, 1),
    Sketcher.Constraint("Coincident", 10, 2, 11, 1),
    Sketcher.Constraint("Coincident", 11, 2, 12, 2),
    Sketcher.Constraint("Coincident", 12, 1, 13, 1),
    Sketcher.Constraint("Coincident", 13, 2, 14, 1),
    Sketcher.Constraint("Coincident", 14, 2, 15, 2),
    Sketcher.Constraint("Coincident", 15, 1, 4, 1),
    Sketcher.Constraint("Horizontal", 0),
    Sketcher.Constraint("Vertical", 1),
    Sketcher.Constraint("Horizontal", 2),
    Sketcher.Constraint("Vertical", 3),
    Sketcher.Constraint("Horizontal", 4),
    Sketcher.Constraint("Vertical", 5),
    Sketcher.Constraint("Vertical", 7),
    Sketcher.Constraint("Horizontal", 8),
    Sketcher.Constraint("Horizontal", 10),
    Sketcher.Constraint("Vertical", 11),
    Sketcher.Constraint("Vertical", 13),
    Sketcher.Constraint("Horizontal", 14),
    Sketcher.Constraint("Coincident", 6, 3, -1, 1),
    Sketcher.Constraint("Coincident", 9, 3, -1, 1),
    Sketcher.Constraint("Coincident", 12, 3, -1, 1),
    Sketcher.Constraint("Coincident", 15, 3, -1, 1),
    Sketcher.Constraint("Equal", 6, 9),
    Sketcher.Constraint("Equal", 9, 12),
    Sketcher.Constraint("Equal", 12, 15),
    Sketcher.Constraint("Symmetric", 0, 2, 2, 2, -1, 1),
    Sketcher.Constraint("Symmetric", 4, 2, 10, 2, -1, 1),
    Sketcher.Constraint("Symmetric", 7, 2, 13, 2, -1, 1),
    Sketcher.Constraint("Symmetric", 4, 2, 7, 2, -2),
    Sketcher.Constraint("Equal", 2, 1),
    Sketcher.Constraint("Equal", 14, 5),
    Sketcher.Constraint("Radius", 6, Q("6.75 mm")),
    Sketcher.Constraint("DistanceX", -1, 1, 4, 2, Q("0.6 mm")),
    Sketcher.Constraint("DistanceX", 0, 2, 0, 1, Q("43.708 mm")),
])
pocket4 = body.newObject("PartDesign::Pocket", "Pocket003")
pocket4.Profile = sketch5
pocket4.Length = 3.5

doc.recompute()
